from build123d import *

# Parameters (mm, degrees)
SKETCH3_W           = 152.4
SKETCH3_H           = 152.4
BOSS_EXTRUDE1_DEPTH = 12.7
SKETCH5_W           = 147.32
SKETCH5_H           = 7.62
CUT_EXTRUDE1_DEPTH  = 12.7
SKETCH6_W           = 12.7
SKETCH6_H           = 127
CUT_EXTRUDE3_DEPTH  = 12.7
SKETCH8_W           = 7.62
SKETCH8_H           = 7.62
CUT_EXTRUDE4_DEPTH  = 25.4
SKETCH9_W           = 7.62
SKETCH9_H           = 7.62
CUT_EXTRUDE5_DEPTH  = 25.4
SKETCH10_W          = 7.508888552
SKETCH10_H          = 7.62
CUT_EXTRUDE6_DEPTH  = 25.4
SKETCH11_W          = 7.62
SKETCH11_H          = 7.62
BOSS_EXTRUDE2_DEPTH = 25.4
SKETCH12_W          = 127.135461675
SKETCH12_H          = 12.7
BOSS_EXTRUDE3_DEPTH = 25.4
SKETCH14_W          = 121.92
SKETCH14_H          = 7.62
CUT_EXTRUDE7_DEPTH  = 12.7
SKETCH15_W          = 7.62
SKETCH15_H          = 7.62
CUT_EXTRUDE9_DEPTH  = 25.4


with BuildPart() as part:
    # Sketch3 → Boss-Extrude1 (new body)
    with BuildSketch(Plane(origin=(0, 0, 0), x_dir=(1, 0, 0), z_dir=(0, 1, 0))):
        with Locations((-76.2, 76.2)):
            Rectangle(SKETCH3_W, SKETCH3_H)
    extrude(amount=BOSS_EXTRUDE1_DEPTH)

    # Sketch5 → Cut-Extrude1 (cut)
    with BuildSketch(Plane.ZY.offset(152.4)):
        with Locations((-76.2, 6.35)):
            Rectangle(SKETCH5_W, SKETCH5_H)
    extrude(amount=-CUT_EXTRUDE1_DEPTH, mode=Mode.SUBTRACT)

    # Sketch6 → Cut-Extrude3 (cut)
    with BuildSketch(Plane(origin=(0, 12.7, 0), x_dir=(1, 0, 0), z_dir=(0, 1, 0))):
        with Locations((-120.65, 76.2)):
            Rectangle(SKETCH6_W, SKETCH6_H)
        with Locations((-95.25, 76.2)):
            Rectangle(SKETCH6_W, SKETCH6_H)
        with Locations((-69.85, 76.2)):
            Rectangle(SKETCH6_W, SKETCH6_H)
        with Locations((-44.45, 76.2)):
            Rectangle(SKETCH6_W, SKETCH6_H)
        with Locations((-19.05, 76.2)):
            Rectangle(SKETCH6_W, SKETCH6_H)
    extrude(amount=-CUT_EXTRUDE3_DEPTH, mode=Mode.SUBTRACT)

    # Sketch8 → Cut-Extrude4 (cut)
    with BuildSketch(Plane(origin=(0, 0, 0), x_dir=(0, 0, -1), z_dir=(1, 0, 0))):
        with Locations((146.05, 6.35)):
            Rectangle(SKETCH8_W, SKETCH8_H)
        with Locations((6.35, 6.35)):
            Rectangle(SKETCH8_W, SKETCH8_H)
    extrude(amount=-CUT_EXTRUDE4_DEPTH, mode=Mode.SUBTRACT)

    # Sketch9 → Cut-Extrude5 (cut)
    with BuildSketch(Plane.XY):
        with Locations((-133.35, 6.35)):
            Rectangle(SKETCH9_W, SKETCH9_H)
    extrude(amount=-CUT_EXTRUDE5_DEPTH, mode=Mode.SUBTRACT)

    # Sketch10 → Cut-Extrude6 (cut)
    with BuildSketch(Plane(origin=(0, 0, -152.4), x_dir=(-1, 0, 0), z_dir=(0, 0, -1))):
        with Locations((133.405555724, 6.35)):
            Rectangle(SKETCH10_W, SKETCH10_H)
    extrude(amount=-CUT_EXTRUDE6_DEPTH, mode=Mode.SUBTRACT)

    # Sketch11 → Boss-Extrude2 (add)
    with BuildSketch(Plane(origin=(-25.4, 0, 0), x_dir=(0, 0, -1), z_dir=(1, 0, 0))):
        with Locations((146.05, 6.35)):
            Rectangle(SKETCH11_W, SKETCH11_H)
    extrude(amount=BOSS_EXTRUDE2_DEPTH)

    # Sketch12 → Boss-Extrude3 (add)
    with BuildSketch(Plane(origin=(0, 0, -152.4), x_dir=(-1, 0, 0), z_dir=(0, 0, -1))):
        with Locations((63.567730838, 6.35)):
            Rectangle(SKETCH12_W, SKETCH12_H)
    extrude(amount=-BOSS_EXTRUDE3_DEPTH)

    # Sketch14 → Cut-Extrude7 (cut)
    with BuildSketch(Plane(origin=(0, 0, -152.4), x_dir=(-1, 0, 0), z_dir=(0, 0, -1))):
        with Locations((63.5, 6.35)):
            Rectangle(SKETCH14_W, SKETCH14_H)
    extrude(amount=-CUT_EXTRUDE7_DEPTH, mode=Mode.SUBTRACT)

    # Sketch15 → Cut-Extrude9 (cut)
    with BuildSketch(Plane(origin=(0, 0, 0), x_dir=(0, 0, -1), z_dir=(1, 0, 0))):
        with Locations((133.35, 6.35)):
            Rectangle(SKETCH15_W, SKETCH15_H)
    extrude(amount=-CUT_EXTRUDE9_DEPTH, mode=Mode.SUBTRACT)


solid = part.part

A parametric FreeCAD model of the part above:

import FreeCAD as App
import Part
import Sketcher
from FreeCAD import Vector
Q = App.Units.Quantity

doc = App.newDocument("Part")
body = doc.addObject("PartDesign::Body", "Body")

# Sketch on XZ plane
sketch1 = body.newObject("Sketcher::SketchObject", "Sketch")
sketch1.AttachmentSupport = (doc.getObject("XZ_Plane"), [""])
sketch1.MapMode = "FlatFace"
sketch1.addGeometry([
    Part.LineSegment(Vector(-152, -152, 0), Vector(-152, 0, 0)),
    Part.LineSegment(Vector(-152, 0, 0), Vector(0, 0, 0)),
    Part.LineSegment(Vector(0, 0, 0), Vector(0, -152, 0)),
    Part.LineSegment(Vector(0, -152, 0), Vector(-152, -152, 0)),
], False)
sketch1.addConstraint([
    Sketcher.Constraint("Coincident", 0, 2, 1, 1),
    Sketcher.Constraint("Coincident", 1, 2, 2, 1),
    Sketcher.Constraint("Coincident", 2, 2, 3, 1),
    Sketcher.Constraint("Coincident", 3, 2, 0, 1),
    Sketcher.Constraint("Vertical", 0),
    Sketcher.Constraint("Horizontal", 1),
    Sketcher.Constraint("Vertical", 2),
    Sketcher.Constraint("Horizontal", 3),
    Sketcher.Constraint("Coincident", 1, 2, -1, 1),
    Sketcher.Constraint("Equal", 3, 0),
    Sketcher.Constraint("DistanceX", 1, 1, 1, 2, Q("6 in")),
])
pad1 = body.newObject("PartDesign::Pad", "Pad")
pad1.Profile = sketch1
pad1.Length = Q("0.5 in")
pad1.Reversed = True

# Sketch on YZ plane
sketch2 = body.newObject("Sketcher::SketchObject", "Sketch001")
sketch2.AttachmentSupport = (doc.getObject("YZ_Plane"), [""])
sketch2.MapMode = "FlatFace"
sketch2.AttachmentOffset = App.Placement(Vector(0, 0, -6 * 25.4), App.Rotation())
sketch2.addGeometry([
    Part.LineSegment(Vector(10, -150, 0), Vector(3, -150, 0)),
    Part.LineSegment(Vector(3, -150, 0), Vector(3, -3, 0)),
    Part.LineSegment(Vector(3, -3, 0), Vector(10, -3, 0)),
    Part.LineSegment(Vector(10, -3, 0), Vector(10, -150, 0)),
], False)
sketch2.addConstraint([
    Sketcher.Constraint("Coincident", 0, 2, 1, 1),
    Sketcher.Constraint("Coincident", 1, 2, 2, 1),
    Sketcher.Constraint("Coincident", 2, 2, 3, 1),
    Sketcher.Constraint("Coincident", 3, 2, 0, 1),
    Sketcher.Constraint("Horizontal", 0),
    Sketcher.Constraint("Vertical", 1),
    Sketcher.Constraint("Horizontal", 2),
    Sketcher.Constraint("Vertical", 3),
    Sketcher.Constraint("DistanceX", 0, 2, 0, 1, Q("0.3 in")),
    Sketcher.Constraint("DistanceY", 1, 1, 1, 2, Q("5.8 in")),
    Sketcher.Constraint("DistanceX", -1, 1, 0, 2, Q("0.1 in")),
    Sketcher.Constraint("DistanceY", 0, 2, -1, 1, Q("5.9 in")),
])
pocket1 = body.newObject("PartDesign::Pocket", "Pocket")
pocket1.Profile = sketch2
pocket1.Length = Q("0.5 in")
pocket1.Reversed = True

# Sketch on XZ plane
sketch3 = body.newObject("Sketcher::SketchObject", "Sketch002")
sketch3.AttachmentSupport = (doc.getObject("XZ_Plane"), [""])
sketch3.MapMode = "FlatFace"
sketch3.AttachmentOffset = App.Placement(Vector(0, 0, -0.5 * 25.4), App.Rotation())
sketch3.addGeometry([
    Part.LineSegment(Vector(-127, -140, 0), Vector(-127, -13, 0)),  # 0
    Part.LineSegment(Vector(-127, -13, 0), Vector(-114, -13, 0)),  # 1
    Part.LineSegment(Vector(-114, -13, 0), Vector(-114, -140, 0)),  # 2
    Part.LineSegment(Vector(-114, -140, 0), Vector(-127, -140, 0)),  # 3
    Part.LineSegment(Vector(-102, -140, 0), Vector(-102, -13, 0)),  # 4
    Part.LineSegment(Vector(-102, -13, 0), Vector(-89, -13, 0)),  # 5
    Part.LineSegment(Vector(-89, -13, 0), Vector(-89, -140, 0)),  # 6
    Part.LineSegment(Vector(-89, -140, 0), Vector(-102, -140, 0)),  # 7
    Part.LineSegment(Vector(-76, -140, 0), Vector(-76, -13, 0)),  # 8
    Part.LineSegment(Vector(-76, -13, 0), Vector(-64, -13, 0)),  # 9
    Part.LineSegment(Vector(-64, -13, 0), Vector(-64, -140, 0)),  # 10
    Part.LineSegment(Vector(-64, -140, 0), Vector(-76, -140, 0)),  # 11
    Part.LineSegment(Vector(-51, -140, 0), Vector(-51, -13, 0)),  # 12
    Part.LineSegment(Vector(-51, -13, 0), Vector(-38, -13, 0)),  # 13
    Part.LineSegment(Vector(-38, -13, 0), Vector(-38, -140, 0)),  # 14
    Part.LineSegment(Vector(-38, -140, 0), Vector(-51, -140, 0)),  # 15
    Part.LineSegment(Vector(-25, -140, 0), Vector(-25, -13, 0)),  # 16
    Part.LineSegment(Vector(-25, -13, 0), Vector(-13, -13, 0)),  # 17
    Part.LineSegment(Vector(-13, -13, 0), Vector(-13, -140, 0)),  # 18
    Part.LineSegment(Vector(-13, -140, 0), Vector(-25, -140, 0)),  # 19
], False)
sketch3.addConstraint([
    Sketcher.Constraint("Coincident", 0, 2, 1, 1),
    Sketcher.Constraint("Coincident", 1, 2, 2, 1),
    Sketcher.Constraint("Coincident", 2, 2, 3, 1),
    Sketcher.Constraint("Coincident", 3, 2, 0, 1),
    Sketcher.Constraint("Coincident", 4, 2, 5, 1),
    Sketcher.Constraint("Coincident", 5, 2, 6, 1),
    Sketcher.Constraint("Coincident", 6, 2, 7, 1),
    Sketcher.Constraint("Coincident", 7, 2, 4, 1),
    Sketcher.Constraint("Coincident", 8, 2, 9, 1),
    Sketcher.Constraint("Coincident", 9, 2, 10, 1),
    Sketcher.Constraint("Coincident", 10, 2, 11, 1),
    Sketcher.Constraint("Coincident", 11, 2, 8, 1),
    Sketcher.Constraint("Coincident", 12, 2, 13, 1),
    Sketcher.Constraint("Coincident", 13, 2, 14, 1),
    Sketcher.Constraint("Coincident", 14, 2, 15, 1),
    Sketcher.Constraint("Coincident", 15, 2, 12, 1),
    Sketcher.Constraint("Coincident", 16, 2, 17, 1),
    Sketcher.Constraint("Coincident", 17, 2, 18, 1),
    Sketcher.Constraint("Coincident", 18, 2, 19, 1),
    Sketcher.Constraint("Coincident", 19, 2, 16, 1),
    Sketcher.Constraint("Vertical", 0),
    Sketcher.Constraint("Horizontal", 1),
    Sketcher.Constraint("Vertical", 2),
    Sketcher.Constraint("Horizontal", 3),
    Sketcher.Constraint("Vertical", 4),
    Sketcher.Constraint("Horizontal", 5),
    Sketcher.Constraint("Vertical", 6),
    Sketcher.Constraint("Horizontal", 7),
    Sketcher.Constraint("Vertical", 8),
    Sketcher.Constraint("Horizontal", 9),
    Sketcher.Constraint("Vertical", 10),
    Sketcher.Constraint("Horizontal", 11),
    Sketcher.Constraint("Vertical", 12),
    Sketcher.Constraint("Horizontal", 13),
    Sketcher.Constraint("Vertical", 14),
    Sketcher.Constraint("Horizontal", 15),
    Sketcher.Constraint("Vertical", 16),
    Sketcher.Constraint("Horizontal", 17),
    Sketcher.Constraint("Vertical", 18),
    Sketcher.Constraint("Horizontal", 19),
    Sketcher.Constraint("Horizontal", 1, 2, 4, 2),
    Sketcher.Constraint("Horizontal", 3, 2, 6, 2),
    Sketcher.Constraint("Horizontal", 5, 2, 8, 2),
    Sketcher.Constraint("Horizontal", 7, 2, 10, 2),
    Sketcher.Constraint("Horizontal", 9, 2, 12, 2),
    Sketcher.Constraint("Horizontal", 11, 2, 14, 2),
    Sketcher.Constraint("Horizontal", 13, 2, 16, 2),
    Sketcher.Constraint("Horizontal", 15, 2, 18, 2),
    Sketcher.Constraint("Equal", 3, 5),
    Sketcher.Constraint("Equal", 7, 9),
    Sketcher.Constraint("Equal", 11, 13),
    Sketcher.Constraint("Equal", 15, 17),
    Sketcher.Constraint("DistanceY", 0, 1, 0, 2, Q("5 in")),
    Sketcher.Constraint("DistanceX", 1, 1, 1, 2, Q("0.5 in")),
    Sketcher.Constraint("DistanceX", 0, 2, -1, 1, Q("5 in")),
    Sketcher.Constraint("DistanceX", 4, 2, -1, 1, Q("4 in")),
    Sketcher.Constraint("DistanceX", 8, 2, -1, 1, Q("3 in")),
    Sketcher.Constraint("DistanceX", 12, 2, -1, 1, Q("2 in")),
    Sketcher.Constraint("DistanceX", 16, 2, -1, 1, Q("1 in")),
    Sketcher.Constraint("DistanceY", 0, 2, -1, 1, Q("0.5 in")),
])
pocket2 = body.newObject("PartDesign::Pocket", "Pocket001")
pocket2.Profile = sketch3
pocket2.Length = Q("0.5 in")
pocket2.Reversed = True

# Sketch on YZ plane
sketch4 = body.newObject("Sketcher::SketchObject", "Sketch003")
sketch4.AttachmentSupport = (doc.getObject("YZ_Plane"), [""])
sketch4.MapMode = "FlatFace"
sketch4.addGeometry([
    Part.LineSegment(Vector(10, -142, 0), Vector(3, -142, 0)),  # 0
    Part.LineSegment(Vector(3, -142, 0), Vector(3, -150, 0)),  # 1
    Part.LineSegment(Vector(3, -150, 0), Vector(10, -150, 0)),  # 2
    Part.LineSegment(Vector(10, -150, 0), Vector(10, -142, 0)),  # 3
    Part.LineSegment(Vector(10, -3, 0), Vector(3, -3, 0)),  # 4
    Part.LineSegment(Vector(3, -3, 0), Vector(3, -10, 0)),  # 5
    Part.LineSegment(Vector(3, -10, 0), Vector(10, -10, 0)),  # 6
    Part.LineSegment(Vector(10, -10, 0), Vector(10, -3, 0)),  # 7
], False)
sketch4.addConstraint([
    Sketcher.Constraint("Coincident", 0, 2, 1, 1),
    Sketcher.Constraint("Coincident", 1, 2, 2, 1),
    Sketcher.Constraint("Coincident", 2, 2, 3, 1),
    Sketcher.Constraint("Coincident", 3, 2, 0, 1),
    Sketcher.Constraint("Coincident", 4, 2, 5, 1),
    Sketcher.Constraint("Coincident", 5, 2, 6, 1),
    Sketcher.Constraint("Coincident", 6, 2, 7, 1),
    Sketcher.Constraint("Coincident", 7, 2, 4, 1),
    Sketcher.Constraint("Horizontal", 0),
    Sketcher.Constraint("Vertical", 1),
    Sketcher.Constraint("Horizontal", 2),
    Sketcher.Constraint("Vertical", 3),
    Sketcher.Constraint("Horizontal", 4),
    Sketcher.Constraint("Vertical", 5),
    Sketcher.Constraint("Horizontal", 6),
    Sketcher.Constraint("Vertical", 7),
    Sketcher.Constraint("Vertical", 1, 2, 4, 2),
    Sketcher.Constraint("Vertical", 3, 2, 6, 2),
    Sketcher.Constraint("Equal", 6, 1),
    Sketcher.Constraint("Equal", 3, 5),
    Sketcher.Constraint("DistanceX", 0, 2, 0, 1, Q("0.3 in")),
    Sketcher.Constraint("DistanceX", -1, 1, 0, 2, Q("0.1 in")),
    Sketcher.Constraint("DistanceY", 0, 2, -1, 1, Q("5.6 in")),
    Sketcher.Constraint("DistanceY", 4, 2, -1, 1, Q("0.1 in")),
])
pocket3 = body.newObject("PartDesign::Pocket", "Pocket002")
pocket3.Profile = sketch4
pocket3.Length = Q("1 in")

# Sketch on XY plane
sketch5 = body.newObject("Sketcher::SketchObject", "Sketch004")
sketch5.AttachmentSupport = (doc.getObject("XY_Plane"), [""])
sketch5.MapMode = "FlatFace"
sketch5.addGeometry([
    Part.LineSegment(Vector(-137, 10, 0), Vector(-137, 3, 0)),
    Part.LineSegment(Vector(-137, 3, 0), Vector(-130, 3, 0)),
    Part.LineSegment(Vector(-130, 3, 0), Vector(-130, 10, 0)),
    Part.LineSegment(Vector(-130, 10, 0), Vector(-137, 10, 0)),
], False)
sketch5.addConstraint([
    Sketcher.Constraint("Coincident", 0, 2, 1, 1),
    Sketcher.Constraint("Coincident", 1, 2, 2, 1),
    Sketcher.Constraint("Coincident", 2, 2, 3, 1),
    Sketcher.Constraint("Coincident", 3, 2, 0, 1),
    Sketcher.Constraint("Vertical", 0),
    Sketcher.Constraint("Horizontal", 1),
    Sketcher.Constraint("Vertical", 2),
    Sketcher.Constraint("Horizontal", 3),
    Sketcher.Constraint("Equal", 3, 0),
    Sketcher.Constraint("DistanceX", 1, 1, 1, 2, Q("0.3 in")),
    Sketcher.Constraint("DistanceX", 0, 2, -1, 1, Q("5.4 in")),
    Sketcher.Constraint("DistanceY", -1, 1, 0, 2, Q("0.1 in")),
])
pocket4 = body.newObject("PartDesign::Pocket", "Pocket003")
pocket4.Profile = sketch5
pocket4.Length = Q("1 in")

# Sketch on XY plane
sketch6 = body.newObject("Sketcher::SketchObject", "Sketch005")
sketch6.AttachmentSupport = (doc.getObject("XY_Plane"), [""])
sketch6.MapMode = "FlatFace"
sketch6.AttachmentOffset = App.Placement(Vector(0, 0, -6 * 25.4), App.Rotation())
sketch6.addGeometry([
    Part.LineSegment(Vector(-130, 10, 0), Vector(-130, 3, 0)),
    Part.LineSegment(Vector(-130, 3, 0), Vector(-137, 3, 0)),
    Part.LineSegment(Vector(-137, 3, 0), Vector(-137, 10, 0)),
    Part.LineSegment(Vector(-137, 10, 0), Vector(-130, 10, 0)),
], False)
sketch6.addConstraint([
    Sketcher.Constraint("Coincident", 0, 2, 1, 1),
    Sketcher.Constraint("Coincident", 1, 2, 2, 1),
    Sketcher.Constraint("Coincident", 2, 2, 3, 1),
    Sketcher.Constraint("Coincident", 3, 2, 0, 1),
    Sketcher.Constraint("Vertical", 0),
    Sketcher.Constraint("Horizontal", 1),
    Sketcher.Constraint("Vertical", 2),
    Sketcher.Constraint("Horizontal", 3),
    Sketcher.Constraint("DistanceY", 0, 2, 0, 1, Q("0.3 in")),
    Sketcher.Constraint("DistanceY", -1, 1, 0, 2, Q("0.1 in")),
    Sketcher.Constraint("DistanceX", 1, 2, -1, 1, Q("5.4 in")),
    Sketcher.Constraint("DistanceX", 1, 2, 1, 1, 7.508889),
])
pocket5 = body.newObject("PartDesign::Pocket", "Pocket004")
pocket5.Profile = sketch6
pocket5.Length = Q("1 in")
pocket5.Reversed = True

# Sketch on YZ plane
sketch7 = body.newObject("Sketcher::SketchObject", "Sketch006")
sketch7.AttachmentSupport = (doc.getObject("YZ_Plane"), [""])
sketch7.MapMode = "FlatFace"
sketch7.AttachmentOffset = App.Placement(Vector(0, 0, -1 * 25.4), App.Rotation())
sketch7.addGeometry([
    Part.LineSegment(Vector(10, -142, 0), Vector(3, -142, 0)),
    Part.LineSegment(Vector(3, -142, 0), Vector(3, -150, 0)),
    Part.LineSegment(Vector(3, -150, 0), Vector(10, -150, 0)),
    Part.LineSegment(Vector(10, -150, 0), Vector(10, -142, 0)),
], False)
sketch7.addConstraint([
    Sketcher.Constraint("Coincident", 0, 2, 1, 1),
    Sketcher.Constraint("Coincident", 1, 2, 2, 1),
    Sketcher.Constraint("Coincident", 2, 2, 3, 1),
    Sketcher.Constraint("Coincident", 3, 2, 0, 1),
    Sketcher.Constraint("Horizontal", 0),
    Sketcher.Constraint("Vertical", 1),
    Sketcher.Constraint("Horizontal", 2),
    Sketcher.Constraint("Vertical", 3),
    Sketcher.Constraint("Equal", 2, 1),
    Sketcher.Constraint("DistanceX", 0, 2, 0, 1, Q("0.3 in")),
    Sketcher.Constraint("DistanceX", -1, 1, 0, 2, Q("0.1 in")),
    Sketcher.Constraint("DistanceY", 0, 2, -1, 1, Q("5.6 in")),
])
pad2 = body.newObject("PartDesign::Pad", "Pad001")
pad2.Profile = sketch7
pad2.Length = Q("1 in")

# Sketch on XY plane
sketch8 = body.newObject("Sketcher::SketchObject", "Sketch007")
sketch8.AttachmentSupport = (doc.getObject("XY_Plane"), [""])
sketch8.MapMode = "FlatFace"
sketch8.AttachmentOffset = App.Placement(Vector(0, 0, -6 * 25.4), App.Rotation())
sketch8.addGeometry([
    Part.LineSegment(Vector(0, 13, 0), Vector(0, 0, 0)),
    Part.LineSegment(Vector(0, 0, 0), Vector(-127, 0, 0)),
    Part.LineSegment(Vector(-127, 0, 0), Vector(-127, 13, 0)),
    Part.LineSegment(Vector(-127, 13, 0), Vector(0, 13, 0)),
], False)
sketch8.addConstraint([
    Sketcher.Constraint("Coincident", 0, 2, 1, 1),
    Sketcher.Constraint("Coincident", 1, 2, 2, 1),
    Sketcher.Constraint("Coincident", 2, 2, 3, 1),
    Sketcher.Constraint("Coincident", 3, 2, 0, 1),
    Sketcher.Constraint("Vertical", 0),
    Sketcher.Constraint("Horizontal", 1),
    Sketcher.Constraint("Vertical", 2),
    Sketcher.Constraint("Horizontal", 3),
    Sketcher.Constraint("Coincident", 0, 2, -1, 1),
    Sketcher.Constraint("DistanceY", 0, 2, 0, 1, Q("0.5 in")),
    Sketcher.Constraint("DistanceX", 1, 2, 1, 1, 127.135462),
])
pad3 = body.newObject("PartDesign::Pad", "Pad002")
pad3.Profile = sketch8
pad3.Length = Q("1 in")

# Sketch on XY plane
sketch9 = body.newObject("Sketcher::SketchObject", "Sketch008")
sketch9.AttachmentSupport = (doc.getObject("XY_Plane"), [""])
sketch9.MapMode = "FlatFace"
sketch9.AttachmentOffset = App.Placement(Vector(0, 0, -6 * 25.4), App.Rotation())
sketch9.addGeometry([
    Part.LineSegment(Vector(-3, 10, 0), Vector(-3, 3, 0)),
    Part.LineSegment(Vector(-3, 3, 0), Vector(-124, 3, 0)),
    Part.LineSegment(Vector(-124, 3, 0), Vector(-124, 10, 0)),
    Part.LineSegment(Vector(-124, 10, 0), Vector(-3, 10, 0)),
], False)
sketch9.addConstraint([
    Sketcher.Constraint("Coincident", 0, 2, 1, 1),
    Sketcher.Constraint("Coincident", 1, 2, 2, 1),
    Sketcher.Constraint("Coincident", 2, 2, 3, 1),
    Sketcher.Constraint("Coincident", 3, 2, 0, 1),
    Sketcher.Constraint("Vertical", 0),
    Sketcher.Constraint("Horizontal", 1),
    Sketcher.Constraint("Vertical", 2),
    Sketcher.Constraint("Horizontal", 3),
    Sketcher.Constraint("DistanceX", 1, 2, 1, 1, Q("4.8 in")),
    Sketcher.Constraint("DistanceY", 0, 2, 0, 1, Q("0.3 in")),
    Sketcher.Constraint("DistanceX", 0, 2, -1, 1, Q("0.1 in")),
    Sketcher.Constraint("DistanceY", -1, 1, 0, 2, Q("0.1 in")),
])
pocket6 = body.newObject("PartDesign::Pocket", "Pocket005")
pocket6.Profile = sketch9
pocket6.Length = Q("0.5 in")
pocket6.Reversed = True

# Sketch on YZ plane
sketch10 = body.newObject("Sketcher::SketchObject", "Sketch009")
sketch10.AttachmentSupport = (doc.getObject("YZ_Plane"), [""])
sketch10.MapMode = "FlatFace"
sketch10.addGeometry([
    Part.LineSegment(Vector(10, -130, 0), Vector(3, -130, 0)),
    Part.LineSegment(Vector(3, -130, 0), Vector(3, -137, 0)),
    Part.LineSegment(Vector(3, -137, 0), Vector(10, -137, 0)),
    Part.LineSegment(Vector(10, -137, 0), Vector(10, -130, 0)),
], False)
sketch10.addConstraint([
    Sketcher.Constraint("Coincident", 0, 2, 1, 1),
    Sketcher.Constraint("Coincident", 1, 2, 2, 1),
    Sketcher.Constraint("Coincident", 2, 2, 3, 1),
    Sketcher.Constraint("Coincident", 3, 2, 0, 1),
    Sketcher.Constraint("Horizontal", 0),
    Sketcher.Constraint("Vertical", 1),
    Sketcher.Constraint("Horizontal", 2),
    Sketcher.Constraint("Vertical", 3),
    Sketcher.Constraint("Equal", 2, 1),
    Sketcher.Constraint("DistanceX", 0, 2, 0, 1, Q("0.3 in")),
    Sketcher.Constraint("DistanceX", -1, 1, 0, 2, Q("0.1 in")),
    Sketcher.Constraint("DistanceY", 0, 2, -1, 1, Q("5.1 in")),
])
pocket7 = body.newObject("PartDesign::Pocket", "Pocket006")
pocket7.Profile = sketch10
pocket7.Length = Q("1 in")

doc.recompute()
